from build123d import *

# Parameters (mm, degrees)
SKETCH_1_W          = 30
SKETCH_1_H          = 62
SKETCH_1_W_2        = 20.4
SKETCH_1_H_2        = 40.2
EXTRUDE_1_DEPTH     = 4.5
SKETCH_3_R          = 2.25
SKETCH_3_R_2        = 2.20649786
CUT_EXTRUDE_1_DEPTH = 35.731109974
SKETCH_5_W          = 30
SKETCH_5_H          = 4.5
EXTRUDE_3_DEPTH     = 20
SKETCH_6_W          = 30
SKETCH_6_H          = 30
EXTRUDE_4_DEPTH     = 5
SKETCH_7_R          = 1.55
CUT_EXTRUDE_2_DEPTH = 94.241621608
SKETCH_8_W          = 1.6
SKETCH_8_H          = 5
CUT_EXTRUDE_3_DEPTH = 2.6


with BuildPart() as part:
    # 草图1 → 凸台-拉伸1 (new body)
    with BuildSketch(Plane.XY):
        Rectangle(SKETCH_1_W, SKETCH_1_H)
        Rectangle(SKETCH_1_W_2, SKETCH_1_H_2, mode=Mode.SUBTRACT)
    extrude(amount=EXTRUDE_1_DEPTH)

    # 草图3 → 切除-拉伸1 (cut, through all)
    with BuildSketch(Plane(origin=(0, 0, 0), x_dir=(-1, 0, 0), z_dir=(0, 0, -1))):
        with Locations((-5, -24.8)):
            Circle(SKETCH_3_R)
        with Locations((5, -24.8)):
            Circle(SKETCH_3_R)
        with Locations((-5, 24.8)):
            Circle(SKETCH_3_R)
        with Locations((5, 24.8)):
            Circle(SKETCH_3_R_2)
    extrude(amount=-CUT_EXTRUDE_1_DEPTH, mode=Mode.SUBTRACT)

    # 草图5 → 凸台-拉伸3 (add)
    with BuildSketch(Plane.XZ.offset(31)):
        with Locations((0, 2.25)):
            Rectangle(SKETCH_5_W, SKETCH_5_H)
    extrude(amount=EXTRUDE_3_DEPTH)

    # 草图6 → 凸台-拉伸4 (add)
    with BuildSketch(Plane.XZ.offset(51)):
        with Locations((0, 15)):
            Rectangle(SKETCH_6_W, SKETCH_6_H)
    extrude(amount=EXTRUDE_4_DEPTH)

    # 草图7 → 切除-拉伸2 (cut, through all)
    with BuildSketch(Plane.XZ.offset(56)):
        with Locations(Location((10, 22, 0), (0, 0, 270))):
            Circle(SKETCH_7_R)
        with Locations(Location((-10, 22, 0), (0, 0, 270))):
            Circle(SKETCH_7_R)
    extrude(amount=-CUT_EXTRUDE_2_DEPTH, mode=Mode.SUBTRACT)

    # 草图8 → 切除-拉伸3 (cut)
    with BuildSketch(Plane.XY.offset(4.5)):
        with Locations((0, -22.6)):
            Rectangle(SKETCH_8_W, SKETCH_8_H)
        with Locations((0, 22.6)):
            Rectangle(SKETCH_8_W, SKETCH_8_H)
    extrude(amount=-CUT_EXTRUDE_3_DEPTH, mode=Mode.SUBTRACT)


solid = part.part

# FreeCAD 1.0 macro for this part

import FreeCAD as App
import Part
import Sketcher

V = App.Vector

doc = App.newDocument("Part")
body = doc.addObject("PartDesign::Body", "Body")

sketch1 = body.newObject("Sketcher::SketchObject", "Sketch")
sketch1.AttachmentSupport = (doc.getObject("XY_Plane"), [""])
sketch1.MapMode = "FlatFace"
sketch1.addGeometry([
    Part.LineSegment(V(-15, 31, 0), V(-15, -31, 0)),
    Part.LineSegment(V(-15, -31, 0), V(15, -31, 0)),
    Part.LineSegment(V(15, -31, 0), V(15, 31, 0)),
    Part.LineSegment(V(15, 31, 0), V(-15, 31, 0)),
    Part.LineSegment(V(10, -20, 0), V(-10, -20, 0)),
    Part.LineSegment(V(-10, -20, 0), V(-10, 20, 0)),
    Part.LineSegment(V(-10, 20, 0), V(10, 20, 0)),
    Part.LineSegment(V(10, 20, 0), V(10, -20, 0)),
], False)
sketch1.addConstraint([
    Sketcher.Constraint("Coincident", 0, 2, 1, 1),
    Sketcher.Constraint("Coincident", 1, 2, 2, 1),
    Sketcher.Constraint("Coincident", 2, 2, 3, 1),
    Sketcher.Constraint("Coincident", 3, 2, 0, 1),
    Sketcher.Constraint("Coincident", 4, 2, 5, 1),
    Sketcher.Constraint("Coincident", 5, 2, 6, 1),
    Sketcher.Constraint("Coincident", 6, 2, 7, 1),
    Sketcher.Constraint("Coincident", 7, 2, 4, 1),
    Sketcher.Constraint("Vertical", 0),
    Sketcher.Constraint("Horizontal", 1),
    Sketcher.Constraint("Vertical", 2),
    Sketcher.Constraint("Horizontal", 3),
    Sketcher.Constraint("Horizontal", 4),
    Sketcher.Constraint("Vertical", 5),
    Sketcher.Constraint("Horizontal", 6),
    Sketcher.Constraint("Vertical", 7),
    Sketcher.Constraint("Symmetric", 0, 2, 2, 2, -1, 1),
    Sketcher.Constraint("Symmetric", 4, 2, 6, 2, -1, 1),
    Sketcher.Constraint("DistanceX", 1, 1, 1, 2, 30.0),
    Sketcher.Constraint("DistanceY", 0, 2, 0, 1, 62.0),
    Sketcher.Constraint("DistanceX", 4, 2, 4, 1, 20.4),
    Sketcher.Constraint("DistanceY", 5, 1, 5, 2, 40.2),
])
pad1 = body.newObject("PartDesign::Pad", "Pad")
pad1.Profile = sketch1
pad1.Length = 4.5

sketch2 = body.newObject("Sketcher::SketchObject", "Sketch001")
sketch2.AttachmentSupport = (doc.getObject("XY_Plane"), [""])
sketch2.MapMode = "FlatFace"
sketch2.addGeometry([
    Part.Circle(V(5, -24.8, 0), V(0, 0, 1), 2.2),
    Part.Circle(V(-5, -24.8, 0), V(0, 0, 1), 2.2),
    Part.Circle(V(5, 24.8, 0), V(0, 0, 1), 2.2),
    Part.Circle(V(-5, 24.8, 0), V(0, 0, 1), 2.2),
], False)
sketch2.addConstraint([
    Sketcher.Constraint("Equal", 0, 1),
    Sketcher.Constraint("Equal", 1, 2),
    Sketcher.Constraint("Symmetric", 1, 3, 2, 3, -1, 1),
    Sketcher.Constraint("Symmetric", 0, 3, 3, 3, -1, 1),
    Sketcher.Constraint("Symmetric", 0, 3, 1, 3, -2),
    Sketcher.Constraint("Diameter", 0, 4.5),
    Sketcher.Constraint("DistanceX", -1, 1, 0, 3, 5.0),
    Sketcher.Constraint("DistanceY", 0, 3, -1, 1, 24.8),
    Sketcher.Constraint("Diameter", 3, 4.412996),
])
pocket1 = body.newObject("PartDesign::Pocket", "Pocket")
pocket1.Profile = sketch2
pocket1.Type = "ThroughAll"
pocket1.Reversed = True

sketch3 = body.newObject("Sketcher::SketchObject", "Sketch002")
sketch3.AttachmentSupport = (doc.getObject("XZ_Plane"), [""])
sketch3.MapMode = "FlatFace"
sketch3.AttachmentOffset = App.Placement(V(0, 0, 31), App.Rotation())
sketch3.addGeometry([
    Part.LineSegment(V(-15, 4.5, 0), V(-15, 0, 0)),
    Part.LineSegment(V(-15, 0, 0), V(15, 0, 0)),
    Part.LineSegment(V(15, 0, 0), V(15, 4.5, 0)),
    Part.LineSegment(V(15, 4.5, 0), V(-15, 4.5, 0)),
], False)
sketch3.addConstraint([
    Sketcher.Constraint("Coincident", 0, 2, 1, 1),
    Sketcher.Constraint("Coincident", 1, 2, 2, 1),
    Sketcher.Constraint("Coincident", 2, 2, 3, 1),
    Sketcher.Constraint("Coincident", 3, 2, 0, 1),
    Sketcher.Constraint("Vertical", 0),
    Sketcher.Constraint("Horizontal", 1),
    Sketcher.Constraint("Vertical", 2),
    Sketcher.Constraint("Horizontal", 3),
    Sketcher.Constraint("Symmetric", 0, 2, 1, 2, -1, 1),
    Sketcher.Constraint("DistanceX", 1, 1, 1, 2, 30.0),
    Sketcher.Constraint("DistanceY", 0, 2, 0, 1, 4.5),
])
pad2 = body.newObject("PartDesign::Pad", "Pad001")
pad2.Profile = sketch3
pad2.Length = 20

sketch4 = body.newObject("Sketcher::SketchObject", "Sketch003")
sketch4.AttachmentSupport = (doc.getObject("XZ_Plane"), [""])
sketch4.MapMode = "FlatFace"
sketch4.AttachmentOffset = App.Placement(V(0, 0, 51), App.Rotation())
sketch4.addGeometry([
    Part.LineSegment(V(-15, 30, 0), V(-15, 0, 0)),
    Part.LineSegment(V(-15, 0, 0), V(15, 0, 0)),
    Part.LineSegment(V(15, 0, 0), V(15, 30, 0)),
    Part.LineSegment(V(15, 30, 0), V(-15, 30, 0)),
], False)
sketch4.addConstraint([
    Sketcher.Constraint("Coincident", 0, 2, 1, 1),
    Sketcher.Constraint("Coincident", 1, 2, 2, 1),
    Sketcher.Constraint("Coincident", 2, 2, 3, 1),
    Sketcher.Constraint("Coincident", 3, 2, 0, 1),
    Sketcher.Constraint("Vertical", 0),
    Sketcher.Constraint("Horizontal", 1),
    Sketcher.Constraint("Vertical", 2),
    Sketcher.Constraint("Horizontal", 3),
    Sketcher.Constraint("Symmetric", 0, 2, 1, 2, -1, 1),
    Sketcher.Constraint("Equal", 3, 0),
    Sketcher.Constraint("DistanceX", 1, 1, 1, 2, 30.0),
])
pad3 = body.newObject("PartDesign::Pad", "Pad002")
pad3.Profile = sketch4
pad3.Length = 5

sketch5 = body.newObject("Sketcher::SketchObject", "Sketch004")
sketch5.AttachmentSupport = (doc.getObject("XZ_Plane"), [""])
sketch5.MapMode = "FlatFace"
sketch5.AttachmentOffset = App.Placement(V(0, 0, 56), App.Rotation())
sketch5.addGeometry([
    Part.Circle(V(10, 22, 0), V(0, 0, 1), 1.6),
    Part.Circle(V(-10, 22, 0), V(0, 0, 1), 1.6),
], False)
sketch5.addConstraint([
    Sketcher.Constraint("Equal", 0, 1),
    Sketcher.Constraint("Symmetric", 0, 3, 1, 3, -2),
    Sketcher.Constraint("Diameter", 0, 3.1),
    Sketcher.Constraint("DistanceX", -1, 1, 0, 3, 10.0),
    Sketcher.Constraint("DistanceY", -1, 1, 0, 3, 22.0),
])
pocket2 = body.newObject("PartDesign::Pocket", "Pocket001")
pocket2.Profile = sketch5
pocket2.Type = "ThroughAll"

sketch6 = body.newObject("Sketcher::SketchObject", "Sketch005")
sketch6.AttachmentSupport = (doc.getObject("XY_Plane"), [""])
sketch6.MapMode = "FlatFace"
sketch6.AttachmentOffset = App.Placement(V(0, 0, 4.5), App.Rotation())
sketch6.addGeometry([
    Part.LineSegment(V(-0.8, -20.1, 0), V(-0.8, -25.1, 0)),
    Part.LineSegment(V(-0.8, -25.1, 0), V(0.8, -25.1, 0)),
    Part.LineSegment(V(0.8, -25.1, 0), V(0.8, -20.1, 0)),
    Part.LineSegment(V(0.8, -20.1, 0), V(-0.8, -20.1, 0)),
    Part.LineSegment(V(-0.8, 25.1, 0), V(-0.8, 20.1, 0)),
    Part.LineSegment(V(-0.8, 20.1, 0), V(0.8, 20.1, 0)),
    Part.LineSegment(V(0.8, 20.1, 0), V(0.8, 25.1, 0)),
    Part.LineSegment(V(0.8, 25.1, 0), V(-0.8, 25.1, 0)),
], False)
sketch6.addConstraint([
    Sketcher.Constraint("Coincident", 0, 2, 1, 1),
    Sketcher.Constraint("Coincident", 1, 2, 2, 1),
    Sketcher.Constraint("Coincident", 2, 2, 3, 1),
    Sketcher.Constraint("Coincident", 3, 2, 0, 1),
    Sketcher.Constraint("Coincident", 4, 2, 5, 1),
    Sketcher.Constraint("Coincident", 5, 2, 6, 1),
    Sketcher.Constraint("Coincident", 6, 2, 7, 1),
    Sketcher.Constraint("Coincident", 7, 2, 4, 1),
    Sketcher.Constraint("Vertical", 0),
    Sketcher.Constraint("Horizontal", 1),
    Sketcher.Constraint("Vertical", 2),
    Sketcher.Constraint("Horizontal", 3),
    Sketcher.Constraint("Vertical", 4),
    Sketcher.Constraint("Horizontal", 5),
    Sketcher.Constraint("Vertical", 6),
    Sketcher.Constraint("Horizontal", 7),
    Sketcher.Constraint("Symmetric", 2, 2, 4, 2, -1, 1),
    Sketcher.Constraint("Symmetric", 0, 2, 6, 2, -1, 1),
    Sketcher.Constraint("Vertical", 3, 2, 4, 2),
    Sketcher.Constraint("DistanceY", 0, 2, 0, 1, 5.0),
    Sketcher.Constraint("DistanceX", 1, 1, 1, 2, 1.6),
    Sketcher.Constraint("DistanceY", 0, 2, -1, 1, 25.1),
])
pocket3 = body.newObject("PartDesign::Pocket", "Pocket002")
pocket3.Profile = sketch6
pocket3.Length = 2.6

doc.recompute()
